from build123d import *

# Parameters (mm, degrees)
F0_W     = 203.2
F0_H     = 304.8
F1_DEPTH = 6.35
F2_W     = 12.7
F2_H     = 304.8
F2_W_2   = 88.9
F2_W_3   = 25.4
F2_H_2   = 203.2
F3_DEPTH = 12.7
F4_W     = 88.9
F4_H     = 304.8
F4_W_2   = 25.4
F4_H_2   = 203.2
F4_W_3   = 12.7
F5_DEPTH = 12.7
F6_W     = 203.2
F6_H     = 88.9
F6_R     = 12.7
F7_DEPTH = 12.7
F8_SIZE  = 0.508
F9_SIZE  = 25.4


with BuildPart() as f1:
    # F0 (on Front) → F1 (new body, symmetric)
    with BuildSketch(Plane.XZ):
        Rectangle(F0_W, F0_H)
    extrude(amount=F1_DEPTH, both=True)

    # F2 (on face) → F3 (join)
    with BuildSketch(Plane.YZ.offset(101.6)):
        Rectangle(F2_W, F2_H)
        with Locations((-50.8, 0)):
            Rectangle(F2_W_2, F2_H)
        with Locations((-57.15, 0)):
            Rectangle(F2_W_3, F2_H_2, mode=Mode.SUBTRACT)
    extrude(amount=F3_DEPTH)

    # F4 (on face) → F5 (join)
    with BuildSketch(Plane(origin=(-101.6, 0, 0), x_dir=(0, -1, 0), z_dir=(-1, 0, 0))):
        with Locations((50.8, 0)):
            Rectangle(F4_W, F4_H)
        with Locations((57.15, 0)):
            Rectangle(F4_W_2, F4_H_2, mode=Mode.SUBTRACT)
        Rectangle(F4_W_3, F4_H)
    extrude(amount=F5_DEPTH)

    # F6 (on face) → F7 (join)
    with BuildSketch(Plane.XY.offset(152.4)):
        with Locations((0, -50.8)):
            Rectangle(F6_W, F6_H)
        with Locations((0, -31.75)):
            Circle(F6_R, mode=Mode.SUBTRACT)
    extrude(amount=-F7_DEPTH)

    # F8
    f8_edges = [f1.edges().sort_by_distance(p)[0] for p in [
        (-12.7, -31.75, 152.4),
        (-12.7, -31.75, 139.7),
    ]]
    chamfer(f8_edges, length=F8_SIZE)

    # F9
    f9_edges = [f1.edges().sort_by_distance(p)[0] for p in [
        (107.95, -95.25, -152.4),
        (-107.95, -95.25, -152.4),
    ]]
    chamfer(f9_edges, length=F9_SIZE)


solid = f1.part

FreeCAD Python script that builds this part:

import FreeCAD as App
import Part
import Sketcher
from FreeCAD import Vector
Q = App.Units.Quantity


def edges_at(feature, points):
    """Names of the edges that pass closest to the given points."""
    edges = feature.Shape.Edges
    near = lambda p: min(range(len(edges)), key=lambda i: edges[i].distToShape(Part.Vertex(*p))[0])
    return sorted({f"Edge{near(p) + 1}" for p in points})


def add_polygon(sketch, points):
    """Adds a closed chain of lines whose ends are joined by coincident constraints."""
    first, n = sketch.GeometryCount, len(points)
    for a, b in zip(points, points[1:] + points[:1]):
        sketch.addGeometry(Part.LineSegment(App.Vector(*a, 0), App.Vector(*b, 0)), False)
    for i in range(n):
        sketch.addConstraint(Sketcher.Constraint("Coincident", first + i, 2, first + (i + 1) % n, 1))

doc = App.newDocument("Part")
body = doc.addObject("PartDesign::Body", "Body")

# Sketch on XZ plane
sketch1 = body.newObject("Sketcher::SketchObject", "Sketch")
sketch1.AttachmentSupport = (doc.getObject("XZ_Plane"), [""])
sketch1.MapMode = "FlatFace"
add_polygon(sketch1, [(-102, 152), (-102, -152), (102, -152), (102, 152)])  # lines 0-3
sketch1.addConstraint([
    Sketcher.Constraint("Vertical", 0),
    Sketcher.Constraint("Horizontal", 1),
    Sketcher.Constraint("Vertical", 2),
    Sketcher.Constraint("Horizontal", 3),
    Sketcher.Constraint("Symmetric", 0, 2, 2, 2, -1, 1),
    Sketcher.Constraint("DistanceX", 1, 1, 1, 2, Q("8 in")),
    Sketcher.Constraint("DistanceY", 0, 2, 0, 1, Q("12 in")),
])
pad1 = body.newObject("PartDesign::Pad", "Pad")
pad1.Profile = sketch1
pad1.Length = Q("0.5 in")
pad1.Midplane = True

# Sketch on YZ plane
sketch2 = body.newObject("Sketcher::SketchObject", "Sketch001")
sketch2.AttachmentSupport = (doc.getObject("YZ_Plane"), [""])
sketch2.MapMode = "FlatFace"
sketch2.AttachmentOffset = App.Placement(Vector(0, 0, 4 * 25.4), App.Rotation())
add_polygon(sketch2, [(6, -152), (6, 152), (-95, 152), (-95, -152)])  # lines 0-3
add_polygon(sketch2, [(-44, -102), (-70, -102), (-70, 102), (-44, 102)])  # lines 4-7
sketch2.addConstraint([
    Sketcher.Constraint("Vertical", 0),
    Sketcher.Constraint("Horizontal", 1),
    Sketcher.Constraint("Vertical", 2),
    Sketcher.Constraint("Horizontal", 3),
    Sketcher.Constraint("Horizontal", 4),
    Sketcher.Constraint("Vertical", 5),
    Sketcher.Constraint("Horizontal", 6),
    Sketcher.Constraint("Vertical", 7),
    Sketcher.Constraint("DistanceX", 1, 2, 1, 1, Q("4 in")),
    Sketcher.Constraint("DistanceX", 4, 2, 4, 1, Q("1 in")),
    Sketcher.Constraint("DistanceY", 0, 1, 0, 2, Q("12 in")),
    Sketcher.Constraint("DistanceY", 5, 1, 5, 2, Q("8 in")),
    Sketcher.Constraint("DistanceY", -1, 1, 0, 2, Q("6 in")),
    Sketcher.Constraint("DistanceY", 4, 2, -1, 1, Q("4 in")),
    Sketcher.Constraint("DistanceX", 2, 2, 4, 2, Q("1 in")),
    Sketcher.Constraint("DistanceX", -1, 1, 0, 2, Q("0.25 in")),
])
pad2 = body.newObject("PartDesign::Pad", "Pad001")
pad2.Profile = sketch2
pad2.Length = Q("0.5 in")

# Sketch on YZ plane
sketch3 = body.newObject("Sketcher::SketchObject", "Sketch002")
sketch3.AttachmentSupport = (doc.getObject("YZ_Plane"), [""])
sketch3.MapMode = "FlatFace"
sketch3.AttachmentOffset = App.Placement(Vector(0, 0, -4 * 25.4), App.Rotation())
add_polygon(sketch3, [(-95, -152), (-95, 152), (6, 152), (6, -152)])  # lines 0-3
add_polygon(sketch3, [(-70, -102), (-44, -102), (-44, 102), (-70, 102)])  # lines 4-7
sketch3.addConstraint([
    Sketcher.Constraint("Vertical", 0),
    Sketcher.Constraint("Horizontal", 1),
    Sketcher.Constraint("Vertical", 2),
    Sketcher.Constraint("Horizontal", 3),
    Sketcher.Constraint("Horizontal", 4),
    Sketcher.Constraint("Vertical", 5),
    Sketcher.Constraint("Horizontal", 6),
    Sketcher.Constraint("Vertical", 7),
    Sketcher.Constraint("DistanceX", 1, 1, 1, 2, Q("4 in")),
    Sketcher.Constraint("DistanceX", 4, 1, 4, 2, Q("1 in")),
    Sketcher.Constraint("DistanceY", 0, 1, 0, 2, Q("12 in")),
    Sketcher.Constraint("DistanceY", 5, 1, 5, 2, Q("8 in")),
    Sketcher.Constraint("DistanceY", -1, 1, 0, 2, Q("6 in")),
    Sketcher.Constraint("DistanceY", 4, 2, -1, 1, Q("4 in")),
    Sketcher.Constraint("DistanceX", 3, 2, 4, 2, Q("2 in")),
    Sketcher.Constraint("DistanceX", 0, 2, -1, 1, Q("3.75 in")),
])
pad3 = body.newObject("PartDesign::Pad", "Pad002")
pad3.Profile = sketch3
pad3.Length = Q("0.5 in")
pad3.Reversed = True

# Sketch on XY plane
sketch4 = body.newObject("Sketcher::SketchObject", "Sketch003")
sketch4.AttachmentSupport = (doc.getObject("XY_Plane"), [""])
sketch4.MapMode = "FlatFace"
sketch4.AttachmentOffset = App.Placement(Vector(0, 0, 6 * 25.4), App.Rotation())
add_polygon(sketch4, [(-102, -6), (-102, -95), (102, -95), (102, -6)])  # lines 0-3
sketch4.addGeometry(Part.Circle(Vector(0, -32, 0), Vector(0, 0, 1), 13), False)  # 4
sketch4.addConstraint([
    Sketcher.Constraint("Vertical", 0),
    Sketcher.Constraint("Horizontal", 1),
    Sketcher.Constraint("Vertical", 2),
    Sketcher.Constraint("Horizontal", 3),
    Sketcher.Constraint("PointOnObject", 4, 3, -2),
    Sketcher.Constraint("Diameter", 4, Q("1 in")),
    Sketcher.Constraint("DistanceX", 1, 1, 1, 2, Q("8 in")),
    Sketcher.Constraint("DistanceY", 0, 2, 0, 1, Q("3.5 in")),
    Sketcher.Constraint("DistanceX", 0, 2, -1, 1, Q("4 in")),
    Sketcher.Constraint("DistanceY", 4, 3, 2, 2, Q("1 in")),
    Sketcher.Constraint("DistanceY", 4, 3, -1, 1, Q("1.25 in")),
])
pad4 = body.newObject("PartDesign::Pad", "Pad003")
pad4.Profile = sketch4
pad4.Length = Q("0.5 in")
pad4.Reversed = True
doc.recompute()

chamfer = body.newObject("PartDesign::Chamfer", "Chamfer")
chamfer.Base = (pad4, edges_at(pad4, [(-12.7, -31.75, 152.4), (-12.7, -31.75, 139.7)]))
chamfer.Size = Q("0.02 in")
doc.recompute()

chamfer2 = body.newObject("PartDesign::Chamfer", "Chamfer001")
chamfer2.Base = (chamfer, edges_at(chamfer, [(107.95, -95.25, -152.4), (-107.95, -95.25, -152.4)]))
chamfer2.Size = Q("1 in")

doc.recompute()
